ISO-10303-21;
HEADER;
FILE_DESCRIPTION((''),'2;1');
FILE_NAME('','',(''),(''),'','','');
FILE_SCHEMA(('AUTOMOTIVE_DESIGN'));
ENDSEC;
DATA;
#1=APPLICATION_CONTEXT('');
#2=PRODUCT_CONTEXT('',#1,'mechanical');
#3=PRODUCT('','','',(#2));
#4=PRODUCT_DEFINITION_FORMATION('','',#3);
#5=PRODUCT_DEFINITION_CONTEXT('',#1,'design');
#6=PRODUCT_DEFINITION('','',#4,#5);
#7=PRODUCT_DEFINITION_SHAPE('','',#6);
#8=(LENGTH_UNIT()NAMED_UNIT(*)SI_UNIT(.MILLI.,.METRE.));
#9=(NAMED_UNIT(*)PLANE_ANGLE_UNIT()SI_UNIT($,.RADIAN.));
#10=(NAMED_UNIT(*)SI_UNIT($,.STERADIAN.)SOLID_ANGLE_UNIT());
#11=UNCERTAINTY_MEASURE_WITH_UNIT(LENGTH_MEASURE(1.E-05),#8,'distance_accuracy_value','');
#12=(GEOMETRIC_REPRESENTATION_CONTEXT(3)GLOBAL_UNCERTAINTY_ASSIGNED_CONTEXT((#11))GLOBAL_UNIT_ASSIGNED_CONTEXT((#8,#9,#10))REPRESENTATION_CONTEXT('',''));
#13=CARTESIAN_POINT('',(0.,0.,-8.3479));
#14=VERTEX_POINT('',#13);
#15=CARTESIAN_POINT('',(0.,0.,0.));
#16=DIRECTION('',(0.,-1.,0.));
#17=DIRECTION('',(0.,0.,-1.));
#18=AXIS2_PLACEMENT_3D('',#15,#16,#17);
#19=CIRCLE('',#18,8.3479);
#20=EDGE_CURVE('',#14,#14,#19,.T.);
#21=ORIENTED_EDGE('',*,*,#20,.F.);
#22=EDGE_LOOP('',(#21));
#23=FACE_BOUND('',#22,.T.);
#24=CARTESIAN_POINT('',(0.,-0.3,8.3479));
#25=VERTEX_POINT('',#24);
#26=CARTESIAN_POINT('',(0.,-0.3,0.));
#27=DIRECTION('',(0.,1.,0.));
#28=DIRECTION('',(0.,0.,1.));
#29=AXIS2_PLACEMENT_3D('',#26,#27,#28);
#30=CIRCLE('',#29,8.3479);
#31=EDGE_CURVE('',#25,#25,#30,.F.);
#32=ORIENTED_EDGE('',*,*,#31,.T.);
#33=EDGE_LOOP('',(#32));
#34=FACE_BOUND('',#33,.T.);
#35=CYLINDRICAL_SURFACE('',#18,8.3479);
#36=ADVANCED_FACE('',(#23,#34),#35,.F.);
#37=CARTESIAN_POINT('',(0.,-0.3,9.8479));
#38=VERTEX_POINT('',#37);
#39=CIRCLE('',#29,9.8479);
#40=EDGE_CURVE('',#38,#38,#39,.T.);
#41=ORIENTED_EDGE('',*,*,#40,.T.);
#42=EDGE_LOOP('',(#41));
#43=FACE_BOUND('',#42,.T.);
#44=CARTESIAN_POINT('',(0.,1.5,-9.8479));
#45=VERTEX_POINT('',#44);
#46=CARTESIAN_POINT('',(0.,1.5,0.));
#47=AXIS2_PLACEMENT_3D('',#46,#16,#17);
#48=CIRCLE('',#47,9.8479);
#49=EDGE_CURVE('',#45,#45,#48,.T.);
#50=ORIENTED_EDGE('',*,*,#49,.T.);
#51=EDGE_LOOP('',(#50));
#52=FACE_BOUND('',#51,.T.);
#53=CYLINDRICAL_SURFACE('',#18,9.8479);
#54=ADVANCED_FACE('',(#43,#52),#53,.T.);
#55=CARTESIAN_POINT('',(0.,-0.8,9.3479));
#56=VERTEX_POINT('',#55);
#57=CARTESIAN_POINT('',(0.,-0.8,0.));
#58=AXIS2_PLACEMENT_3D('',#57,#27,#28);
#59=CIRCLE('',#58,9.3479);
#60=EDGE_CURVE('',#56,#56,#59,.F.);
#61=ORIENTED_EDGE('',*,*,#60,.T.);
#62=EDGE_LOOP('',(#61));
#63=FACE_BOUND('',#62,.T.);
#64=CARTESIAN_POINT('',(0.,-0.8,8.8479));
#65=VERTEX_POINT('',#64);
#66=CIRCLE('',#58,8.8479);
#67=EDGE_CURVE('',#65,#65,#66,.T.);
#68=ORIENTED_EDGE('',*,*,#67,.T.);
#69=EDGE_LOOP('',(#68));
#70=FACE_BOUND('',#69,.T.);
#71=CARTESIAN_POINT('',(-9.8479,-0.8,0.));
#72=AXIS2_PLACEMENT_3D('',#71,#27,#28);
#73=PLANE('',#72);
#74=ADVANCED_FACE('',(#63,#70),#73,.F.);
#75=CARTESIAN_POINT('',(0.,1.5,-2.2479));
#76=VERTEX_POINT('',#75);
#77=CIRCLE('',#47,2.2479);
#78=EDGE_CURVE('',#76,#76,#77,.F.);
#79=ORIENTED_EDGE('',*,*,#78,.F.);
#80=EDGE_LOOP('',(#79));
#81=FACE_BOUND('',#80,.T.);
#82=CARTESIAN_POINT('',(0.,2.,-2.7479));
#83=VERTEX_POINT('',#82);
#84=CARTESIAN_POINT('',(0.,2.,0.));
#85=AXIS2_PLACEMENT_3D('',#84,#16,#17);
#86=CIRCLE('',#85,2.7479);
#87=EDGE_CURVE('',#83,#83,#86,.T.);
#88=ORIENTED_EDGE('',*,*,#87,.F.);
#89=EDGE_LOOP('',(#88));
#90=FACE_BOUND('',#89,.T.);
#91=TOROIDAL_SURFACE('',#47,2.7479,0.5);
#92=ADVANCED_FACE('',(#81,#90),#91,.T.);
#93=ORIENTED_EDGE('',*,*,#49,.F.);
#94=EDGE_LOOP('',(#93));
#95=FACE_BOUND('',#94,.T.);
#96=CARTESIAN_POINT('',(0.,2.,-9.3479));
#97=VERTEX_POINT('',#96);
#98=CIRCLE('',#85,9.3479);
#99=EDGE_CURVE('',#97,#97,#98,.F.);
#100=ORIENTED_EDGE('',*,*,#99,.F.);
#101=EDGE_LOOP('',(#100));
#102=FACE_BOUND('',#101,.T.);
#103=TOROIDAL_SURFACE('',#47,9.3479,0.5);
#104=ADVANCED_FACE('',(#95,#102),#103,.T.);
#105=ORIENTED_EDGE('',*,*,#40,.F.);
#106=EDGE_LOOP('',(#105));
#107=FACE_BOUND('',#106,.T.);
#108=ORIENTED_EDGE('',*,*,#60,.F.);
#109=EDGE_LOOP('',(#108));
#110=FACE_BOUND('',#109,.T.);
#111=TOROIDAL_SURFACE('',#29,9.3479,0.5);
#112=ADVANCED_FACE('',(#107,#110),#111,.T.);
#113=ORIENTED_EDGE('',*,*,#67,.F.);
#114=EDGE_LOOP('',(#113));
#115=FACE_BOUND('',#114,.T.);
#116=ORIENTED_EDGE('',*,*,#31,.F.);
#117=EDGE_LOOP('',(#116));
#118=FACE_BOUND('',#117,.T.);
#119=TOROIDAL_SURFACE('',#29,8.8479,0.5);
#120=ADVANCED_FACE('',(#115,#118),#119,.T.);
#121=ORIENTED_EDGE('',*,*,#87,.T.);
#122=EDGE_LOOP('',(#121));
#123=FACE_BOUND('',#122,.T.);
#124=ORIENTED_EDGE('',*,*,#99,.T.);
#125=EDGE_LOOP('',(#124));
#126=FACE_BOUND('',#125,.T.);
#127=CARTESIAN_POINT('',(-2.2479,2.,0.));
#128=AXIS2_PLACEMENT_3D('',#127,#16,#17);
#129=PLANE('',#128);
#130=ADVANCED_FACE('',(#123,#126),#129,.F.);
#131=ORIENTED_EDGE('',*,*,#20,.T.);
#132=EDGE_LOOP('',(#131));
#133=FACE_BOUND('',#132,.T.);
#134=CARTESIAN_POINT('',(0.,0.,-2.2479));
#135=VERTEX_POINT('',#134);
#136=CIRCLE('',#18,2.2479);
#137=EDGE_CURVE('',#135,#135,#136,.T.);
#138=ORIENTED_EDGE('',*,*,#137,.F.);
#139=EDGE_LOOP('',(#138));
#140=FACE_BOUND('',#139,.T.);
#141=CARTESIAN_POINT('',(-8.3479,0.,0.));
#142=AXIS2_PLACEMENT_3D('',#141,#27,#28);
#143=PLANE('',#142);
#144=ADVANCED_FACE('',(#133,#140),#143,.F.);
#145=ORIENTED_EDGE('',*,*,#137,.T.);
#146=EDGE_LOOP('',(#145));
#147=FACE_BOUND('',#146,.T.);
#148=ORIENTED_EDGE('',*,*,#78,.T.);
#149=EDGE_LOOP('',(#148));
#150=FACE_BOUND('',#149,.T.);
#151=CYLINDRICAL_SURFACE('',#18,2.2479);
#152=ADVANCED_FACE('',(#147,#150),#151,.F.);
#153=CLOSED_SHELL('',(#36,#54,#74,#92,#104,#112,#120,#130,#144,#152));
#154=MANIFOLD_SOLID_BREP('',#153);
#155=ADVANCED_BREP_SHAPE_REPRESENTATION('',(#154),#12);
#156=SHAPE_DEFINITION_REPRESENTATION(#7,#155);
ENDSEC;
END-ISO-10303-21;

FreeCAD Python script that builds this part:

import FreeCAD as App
import Part
import Sketcher
Q = App.Units.Quantity


def edges_at(feature, points):
    """Names of the edges that pass closest to the given points."""
    edges = feature.Shape.Edges
    near = lambda p: min(range(len(edges)), key=lambda i: edges[i].distToShape(Part.Vertex(*p))[0])
    return sorted({f"Edge{near(p) + 1}" for p in points})

doc = App.newDocument("Part")
body = doc.addObject("PartDesign::Body", "Body")

# Sketch on XY plane
sketch1 = body.newObject("Sketcher::SketchObject", "Sketch")
sketch1.AttachmentSupport = (doc.getObject("XY_Plane"), [""])
sketch1.MapMode = "FlatFace"
sketch1.addGeometry([
    Part.LineSegment(App.Vector(-2.2, 0, 0), App.Vector(-2.2, 2, 0)),  # 0
    Part.LineSegment(App.Vector(-2.2, 2, 0), App.Vector(-9.8, 2, 0)),  # 1
    Part.LineSegment(App.Vector(-9.8, 2, 0), App.Vector(-9.8, -0.8, 0)),  # 2
    Part.LineSegment(App.Vector(-9.8, -0.8, 0), App.Vector(-8.3, -0.8, 0)),  # 3
    Part.LineSegment(App.Vector(-8.3, -0.8, 0), App.Vector(-8.3, 0, 0)),  # 4
    Part.LineSegment(App.Vector(-8.3, 0, 0), App.Vector(-2.2, 0, 0)),  # 5
], False)
sketch1.addConstraint([
    Sketcher.Constraint("Coincident", 0, 2, 1, 1),
    Sketcher.Constraint("Coincident", 1, 2, 2, 1),
    Sketcher.Constraint("Coincident", 2, 2, 3, 1),
    Sketcher.Constraint("Coincident", 3, 2, 4, 1),
    Sketcher.Constraint("Coincident", 4, 2, 5, 1),
    Sketcher.Constraint("Coincident", 5, 2, 0, 1),
    Sketcher.Constraint("Vertical", 0),
    Sketcher.Constraint("Horizontal", 1),
    Sketcher.Constraint("Vertical", 2),
    Sketcher.Constraint("Horizontal", 3),
    Sketcher.Constraint("Vertical", 4),
    Sketcher.Constraint("Horizontal", 5),
    Sketcher.Constraint("PointOnObject", 4, 2, -1),
    Sketcher.Constraint("DistanceY", 0, 1, 0, 2, Q("2 mm")),
    Sketcher.Constraint("DistanceX", 1, 2, 1, 1, Q("7.6 mm")),
    Sketcher.Constraint("DistanceX", 3, 1, 3, 2, Q("1.5 mm")),
    Sketcher.Constraint("DistanceY", 2, 2, 2, 1, Q("2.8 mm")),
    Sketcher.Constraint("DistanceX", 0, 2, -1, 1, Q("2.2479 mm")),
])
revolution = body.newObject("PartDesign::Revolution", "Revolution")
revolution.Profile = sketch1
revolution.ReferenceAxis = (sketch1, ["V_Axis"])
revolution.Angle = 360
doc.recompute()

fillet = body.newObject("PartDesign::Fillet", "Fillet")
fillet.Base = (revolution, edges_at(revolution, [
    (8.348, -0.8, 0),
    (9.848, -0.8, 0),
    (9.848, 2, 0),
    (2.248, 2, 0),
]))
fillet.Radius = 0.5

doc.recompute()
